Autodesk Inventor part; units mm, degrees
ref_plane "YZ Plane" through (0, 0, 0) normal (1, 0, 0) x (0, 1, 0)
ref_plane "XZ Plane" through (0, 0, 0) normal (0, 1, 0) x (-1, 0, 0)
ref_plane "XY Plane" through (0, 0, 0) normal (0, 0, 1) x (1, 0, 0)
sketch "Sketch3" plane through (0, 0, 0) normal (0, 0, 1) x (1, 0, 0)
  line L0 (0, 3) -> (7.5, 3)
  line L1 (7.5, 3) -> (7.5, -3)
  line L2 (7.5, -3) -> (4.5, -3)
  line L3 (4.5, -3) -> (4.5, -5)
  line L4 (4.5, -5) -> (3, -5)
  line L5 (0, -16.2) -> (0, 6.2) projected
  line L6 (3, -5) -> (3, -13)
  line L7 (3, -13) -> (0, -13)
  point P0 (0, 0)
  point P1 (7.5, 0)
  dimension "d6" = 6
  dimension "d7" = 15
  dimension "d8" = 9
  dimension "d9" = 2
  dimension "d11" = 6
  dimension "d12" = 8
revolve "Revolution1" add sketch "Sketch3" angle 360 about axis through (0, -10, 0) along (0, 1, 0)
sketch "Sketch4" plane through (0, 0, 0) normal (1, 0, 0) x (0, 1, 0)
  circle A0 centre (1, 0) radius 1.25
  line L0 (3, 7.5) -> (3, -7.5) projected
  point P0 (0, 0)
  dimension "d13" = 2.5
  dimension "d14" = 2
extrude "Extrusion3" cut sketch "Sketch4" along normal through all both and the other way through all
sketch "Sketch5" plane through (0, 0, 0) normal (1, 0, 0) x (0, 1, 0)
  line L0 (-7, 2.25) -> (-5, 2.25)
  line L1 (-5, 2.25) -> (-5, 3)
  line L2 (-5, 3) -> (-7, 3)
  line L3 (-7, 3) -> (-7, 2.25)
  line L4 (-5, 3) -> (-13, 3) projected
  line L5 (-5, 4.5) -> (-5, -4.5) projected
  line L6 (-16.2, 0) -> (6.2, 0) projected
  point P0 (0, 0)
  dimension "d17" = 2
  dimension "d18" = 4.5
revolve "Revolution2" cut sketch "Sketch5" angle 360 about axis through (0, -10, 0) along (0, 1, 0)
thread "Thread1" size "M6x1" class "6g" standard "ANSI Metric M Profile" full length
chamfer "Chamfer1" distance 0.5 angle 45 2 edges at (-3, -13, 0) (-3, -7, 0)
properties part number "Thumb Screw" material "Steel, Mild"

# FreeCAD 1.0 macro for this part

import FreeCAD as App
import Part
import Sketcher

V = App.Vector
Q = App.Units.Quantity


def edges_at(feature, points):
    """Names of the edges that pass closest to the given points."""
    edges = feature.Shape.Edges
    near = lambda p: min(range(len(edges)), key=lambda i: edges[i].distToShape(Part.Vertex(*p))[0])
    return sorted({f"Edge{near(p) + 1}" for p in points})


def add_polygon(sketch, points):
    """Adds a closed chain of lines whose ends are joined by coincident constraints."""
    first, n = sketch.GeometryCount, len(points)
    for a, b in zip(points, points[1:] + points[:1]):
        sketch.addGeometry(Part.LineSegment(App.Vector(*a, 0), App.Vector(*b, 0)), False)
    for i in range(n):
        sketch.addConstraint(Sketcher.Constraint("Coincident", first + i, 2, first + (i + 1) % n, 1))

doc = App.newDocument("Part")
params = doc.addObject("Spreadsheet::Sheet", "Params")
for row, (alias, value) in enumerate([
    ("sketch1_height", "8 mm"),
    ("sketch1_height2", "2 mm"),
    ("sketch1_height3", "6 mm"),
    ("sketch1_width", "3 mm"),
    ("sketch1_width2", "7.5 mm"),
    ("revolution_angle", "360 deg"),
    ("sketch2_diameter", "2.5 mm"),
    ("sketch3_width", "2 mm"),
    ("sketch3_height", "0.75 mm"),
    ("groove_angle", "360 deg"),
    ("chamfer_size", "0.5 mm"),
], start=1):
    params.set(f"A{row}", alias)
    params.set(f"B{row}", "=" + value)
    params.setAlias(f"B{row}", alias)

body = doc.addObject("PartDesign::Body", "Body")

# Sketch on XY plane
sketch1 = body.newObject("Sketcher::SketchObject", "Sketch")
sketch1.AttachmentSupport = (doc.getObject("XY_Plane"), [""])
sketch1.MapMode = "FlatFace"
add_polygon(sketch1, [(7.5, 3), (0, 3), (0, -13), (3, -13), (3, -5), (4.5, -5), (4.5, -3), (7.5, -3)])  # lines 0-7
sketch1.addConstraint([
    Sketcher.Constraint("Horizontal", 0),
    Sketcher.Constraint("Vertical", 1),
    Sketcher.Constraint("Horizontal", 2),
    Sketcher.Constraint("Vertical", 3),
    Sketcher.Constraint("Horizontal", 4),
    Sketcher.Constraint("Vertical", 5),
    Sketcher.Constraint("Horizontal", 6),
    Sketcher.Constraint("Vertical", 7),
    Sketcher.Constraint("PointOnObject", 0, 2, -2),
    Sketcher.Constraint("Equal", 2, 6),
    Sketcher.Constraint("DistanceY", 3, 1, 3, 2, Q("8 mm")),
    Sketcher.Constraint("DistanceY", 5, 1, 5, 2, Q("2 mm")),
    Sketcher.Constraint("DistanceY", 7, 1, 7, 2, Q("6 mm")),
    Sketcher.Constraint("DistanceX", 2, 1, 2, 2, Q("3 mm")),
    Sketcher.Constraint("DistanceX", 0, 2, 0, 1, Q("7.5 mm")),
    Sketcher.Constraint("DistanceY", -1, 1, 0, 2, Q("3 mm")),
])
sketch1.setExpression("Constraints[18]", "Params.sketch1_height")
sketch1.setExpression("Constraints[19]", "Params.sketch1_height2")
sketch1.setExpression("Constraints[20]", "Params.sketch1_height3")
sketch1.setExpression("Constraints[21]", "Params.sketch1_width")
sketch1.setExpression("Constraints[22]", "Params.sketch1_width2")
revolution = body.newObject("PartDesign::Revolution", "Revolution")
revolution.Profile = sketch1
revolution.ReferenceAxis = (sketch1, ["V_Axis"])
revolution.setExpression("Angle", "Params.revolution_angle")

# Sketch on YZ plane
sketch2 = body.newObject("Sketcher::SketchObject", "Sketch001")
sketch2.AttachmentSupport = (doc.getObject("YZ_Plane"), [""])
sketch2.MapMode = "FlatFace"
sketch2.addGeometry(Part.Circle(V(1, 0, 0), V(0, 0, 1), 1.2), False)
sketch2.addConstraint([
    Sketcher.Constraint("PointOnObject", 0, 3, -1),
    Sketcher.Constraint("Diameter", 0, Q("2.5 mm")),
    Sketcher.Constraint("DistanceX", -1, 1, 0, 3, Q("1 mm")),
])
sketch2.setExpression("Constraints[1]", "Params.sketch2_diameter")
pocket1 = body.newObject("PartDesign::Pocket", "Pocket")
pocket1.Profile = sketch2
pocket1.Type = "ThroughAll"
pocket1.Midplane = True

# Sketch on YZ plane
sketch3 = body.newObject("Sketcher::SketchObject", "Sketch002")
sketch3.AttachmentSupport = (doc.getObject("YZ_Plane"), [""])
sketch3.MapMode = "FlatFace"
add_polygon(sketch3, [(-7, 3), (-7, 2.2), (-5, 2.2), (-5, 3)])  # lines 0-3
sketch3.addConstraint([
    Sketcher.Constraint("Vertical", 0),
    Sketcher.Constraint("Horizontal", 1),
    Sketcher.Constraint("Vertical", 2),
    Sketcher.Constraint("Horizontal", 3),
    Sketcher.Constraint("DistanceX", 1, 1, 1, 2, Q("2 mm")),
    Sketcher.Constraint("DistanceX", 0, 2, -1, 1, Q("7 mm")),
    Sketcher.Constraint("DistanceY", -1, 1, 2, 2, Q("3 mm")),
    Sketcher.Constraint("DistanceY", 0, 2, 0, 1, Q("0.75 mm")),
])
sketch3.setExpression("Constraints[8]", "Params.sketch3_width")
sketch3.setExpression("Constraints[11]", "Params.sketch3_height")
groove = body.newObject("PartDesign::Groove", "Groove")
groove.Profile = sketch3
groove.ReferenceAxis = (sketch3, ["H_Axis"])
groove.setExpression("Angle", "Params.groove_angle")
doc.recompute()

chamfer = body.newObject("PartDesign::Chamfer", "Chamfer")
chamfer.Base = (groove, edges_at(groove, [(-3, -13, 0), (-3, -7, 0)]))
chamfer.setExpression("Size", "Params.chamfer_size")

doc.recompute()
